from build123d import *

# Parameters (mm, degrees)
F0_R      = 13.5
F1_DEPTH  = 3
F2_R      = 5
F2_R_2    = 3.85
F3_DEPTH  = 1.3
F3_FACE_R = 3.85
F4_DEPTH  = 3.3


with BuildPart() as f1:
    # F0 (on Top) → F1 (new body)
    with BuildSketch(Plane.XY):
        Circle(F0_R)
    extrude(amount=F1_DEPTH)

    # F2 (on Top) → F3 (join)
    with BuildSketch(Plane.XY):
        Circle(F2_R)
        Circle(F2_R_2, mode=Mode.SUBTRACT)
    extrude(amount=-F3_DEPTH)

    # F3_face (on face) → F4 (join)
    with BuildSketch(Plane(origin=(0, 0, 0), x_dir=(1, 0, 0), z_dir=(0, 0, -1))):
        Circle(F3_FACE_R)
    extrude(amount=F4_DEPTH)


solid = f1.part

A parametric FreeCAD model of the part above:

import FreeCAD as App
import Part
import Sketcher
Q = App.Units.Quantity

doc = App.newDocument("Part")
params = doc.addObject("Spreadsheet::Sheet", "Params")
for row, (alias, value) in enumerate([
    ("sketch1_diameter", "27 mm"),
    ("pad1_length", "3 mm"),
    ("sketch2_diameter", "10 mm"),
    ("sketch2_diameter2", "7.7 mm"),
    ("pad2_length", "1.3 mm"),
    ("sketch3_diameter", "7.7 mm"),
    ("pad3_length", "3.3 mm"),
], start=1):
    params.set(f"A{row}", alias)
    params.set(f"B{row}", "=" + value)
    params.setAlias(f"B{row}", alias)

body = doc.addObject("PartDesign::Body", "Body")

# Sketch on XY plane
sketch1 = doc.addObject("Sketcher::SketchObject", "Sketch")
body.addObject(sketch1)
sketch1.AttachmentSupport = (doc.XY_Plane, [""])
sketch1.MapMode = "FlatFace"
sketch1.addGeometry(Part.Circle(App.Vector(0, 0, 0), App.Vector(0, 0, 1), 14), False)
sketch1.addConstraint([
    Sketcher.Constraint("Coincident", 0, 3, -1, 1),
    Sketcher.Constraint("Diameter", 0, Q("27 mm")),
])
sketch1.setExpression("Constraints[1]", "Params.sketch1_diameter")
pad1 = doc.addObject("PartDesign::Pad", "Pad")
body.addObject(pad1)
pad1.Profile = sketch1
pad1.setExpression("Length", "Params.pad1_length")

# Sketch on XY plane
sketch2 = doc.addObject("Sketcher::SketchObject", "Sketch001")
body.addObject(sketch2)
sketch2.AttachmentSupport = (doc.XY_Plane, [""])
sketch2.MapMode = "FlatFace"
sketch2.addGeometry([
    Part.Circle(App.Vector(0, 0, 0), App.Vector(0, 0, 1), 5),
    Part.Circle(App.Vector(0, 0, 0), App.Vector(0, 0, 1), 3.9),
], False)
sketch2.addConstraint([
    Sketcher.Constraint("Coincident", 0, 3, -1, 1),
    Sketcher.Constraint("Coincident", 1, 3, -1, 1),
    Sketcher.Constraint("Diameter", 0, Q("10 mm")),
    Sketcher.Constraint("Diameter", 1, Q("7.7 mm")),
])
sketch2.setExpression("Constraints[2]", "Params.sketch2_diameter")
sketch2.setExpression("Constraints[3]", "Params.sketch2_diameter2")
pad2 = doc.addObject("PartDesign::Pad", "Pad001")
body.addObject(pad2)
pad2.Profile = sketch2
pad2.setExpression("Length", "Params.pad2_length")
pad2.Reversed = True

# Sketch on XY plane
sketch3 = doc.addObject("Sketcher::SketchObject", "Sketch002")
body.addObject(sketch3)
sketch3.AttachmentSupport = (doc.XY_Plane, [""])
sketch3.MapMode = "FlatFace"
sketch3.addGeometry(Part.Circle(App.Vector(0, 0, 0), App.Vector(0, 0, 1), 3.9), False)
sketch3.addConstraint([
    Sketcher.Constraint("Coincident", 0, 3, -1, 1),
    Sketcher.Constraint("Diameter", 0, Q("7.7 mm")),
])
sketch3.setExpression("Constraints[1]", "Params.sketch3_diameter")
pad3 = doc.addObject("PartDesign::Pad", "Pad002")
body.addObject(pad3)
pad3.Profile = sketch3
pad3.setExpression("Length", "Params.pad3_length")
pad3.Reversed = True

doc.recompute()
